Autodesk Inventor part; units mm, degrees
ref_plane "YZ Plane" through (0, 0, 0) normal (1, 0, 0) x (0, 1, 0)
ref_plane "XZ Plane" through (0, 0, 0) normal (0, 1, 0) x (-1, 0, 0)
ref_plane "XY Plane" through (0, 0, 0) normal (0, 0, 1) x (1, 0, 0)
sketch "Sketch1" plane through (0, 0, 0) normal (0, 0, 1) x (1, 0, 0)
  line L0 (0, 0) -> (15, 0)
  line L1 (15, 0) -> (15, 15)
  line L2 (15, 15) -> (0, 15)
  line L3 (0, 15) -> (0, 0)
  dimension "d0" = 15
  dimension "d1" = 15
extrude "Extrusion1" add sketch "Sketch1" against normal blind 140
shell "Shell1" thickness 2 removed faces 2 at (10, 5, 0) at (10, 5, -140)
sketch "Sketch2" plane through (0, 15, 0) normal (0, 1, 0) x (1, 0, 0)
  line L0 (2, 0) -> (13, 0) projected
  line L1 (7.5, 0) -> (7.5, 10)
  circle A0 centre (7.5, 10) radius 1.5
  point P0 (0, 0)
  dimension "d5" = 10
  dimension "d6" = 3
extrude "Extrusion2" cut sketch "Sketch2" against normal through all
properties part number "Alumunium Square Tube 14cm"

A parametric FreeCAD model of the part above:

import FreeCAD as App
import Part
import Sketcher
from FreeCAD import Vector


def faces_at(feature, points):
    """Names of the faces that lie closest to the given points."""
    faces = feature.Shape.Faces
    near = lambda p: min(range(len(faces)), key=lambda i: faces[i].distToShape(Part.Vertex(*p))[0])
    return sorted({f"Face{near(p) + 1}" for p in points})


def add_polygon(sketch, points):
    """Adds a closed chain of lines whose ends are joined by coincident constraints."""
    first, n = sketch.GeometryCount, len(points)
    for a, b in zip(points, points[1:] + points[:1]):
        sketch.addGeometry(Part.LineSegment(App.Vector(*a, 0), App.Vector(*b, 0)), False)
    for i in range(n):
        sketch.addConstraint(Sketcher.Constraint("Coincident", first + i, 2, first + (i + 1) % n, 1))

doc = App.newDocument("Part")
body = doc.addObject("PartDesign::Body", "Body")

sketch1 = doc.addObject("Sketcher::SketchObject", "Sketch")
body.addObject(sketch1)
sketch1.AttachmentSupport = (doc.XY_Plane, [""])
sketch1.MapMode = "FlatFace"
add_polygon(sketch1, [(0, 15), (0, 0), (15, 0), (15, 15)])
sketch1.addConstraint([
    Sketcher.Constraint("Vertical", 0),
    Sketcher.Constraint("Horizontal", 1),
    Sketcher.Constraint("Vertical", 2),
    Sketcher.Constraint("Horizontal", 3),
    Sketcher.Constraint("Coincident", 0, 2, -1, 1),
    Sketcher.Constraint("Equal", 3, 0),
    Sketcher.Constraint("DistanceX", 1, 1, 1, 2, 15.0),
])
pad1 = doc.addObject("PartDesign::Pad", "Pad")
body.addObject(pad1)
pad1.Profile = sketch1
pad1.Length = 140
pad1.Reversed = True
doc.recompute()

thickness = doc.addObject("PartDesign::Thickness", "Thickness")
body.addObject(thickness)
thickness.Base = (pad1, faces_at(pad1, [(10, 5, 0), (10, 5, -140)]))
thickness.Value = 2
thickness.Reversed = True
thickness.Join = "Intersection"

sketch2 = doc.addObject("Sketcher::SketchObject", "Sketch001")
body.addObject(sketch2)
sketch2.AttachmentSupport = (doc.XZ_Plane, [""])
sketch2.MapMode = "FlatFace"
sketch2.AttachmentOffset = App.Placement(Vector(0, 0, -15), App.Rotation())
sketch2.addGeometry(Part.Circle(Vector(7.5, -10, 0), Vector(0, 0, 1), 1.5), False)
sketch2.addConstraint([
    Sketcher.Constraint("Diameter", 0, 3.0),
    Sketcher.Constraint("DistanceY", 0, 3, -1, 1, 10.0),
    Sketcher.Constraint("DistanceX", -1, 1, 0, 3, 7.5),
])
pocket1 = doc.addObject("PartDesign::Pocket", "Pocket")
body.addObject(pocket1)
pocket1.Profile = sketch2
pocket1.Type = "ThroughAll"
pocket1.Reversed = True

doc.recompute()
